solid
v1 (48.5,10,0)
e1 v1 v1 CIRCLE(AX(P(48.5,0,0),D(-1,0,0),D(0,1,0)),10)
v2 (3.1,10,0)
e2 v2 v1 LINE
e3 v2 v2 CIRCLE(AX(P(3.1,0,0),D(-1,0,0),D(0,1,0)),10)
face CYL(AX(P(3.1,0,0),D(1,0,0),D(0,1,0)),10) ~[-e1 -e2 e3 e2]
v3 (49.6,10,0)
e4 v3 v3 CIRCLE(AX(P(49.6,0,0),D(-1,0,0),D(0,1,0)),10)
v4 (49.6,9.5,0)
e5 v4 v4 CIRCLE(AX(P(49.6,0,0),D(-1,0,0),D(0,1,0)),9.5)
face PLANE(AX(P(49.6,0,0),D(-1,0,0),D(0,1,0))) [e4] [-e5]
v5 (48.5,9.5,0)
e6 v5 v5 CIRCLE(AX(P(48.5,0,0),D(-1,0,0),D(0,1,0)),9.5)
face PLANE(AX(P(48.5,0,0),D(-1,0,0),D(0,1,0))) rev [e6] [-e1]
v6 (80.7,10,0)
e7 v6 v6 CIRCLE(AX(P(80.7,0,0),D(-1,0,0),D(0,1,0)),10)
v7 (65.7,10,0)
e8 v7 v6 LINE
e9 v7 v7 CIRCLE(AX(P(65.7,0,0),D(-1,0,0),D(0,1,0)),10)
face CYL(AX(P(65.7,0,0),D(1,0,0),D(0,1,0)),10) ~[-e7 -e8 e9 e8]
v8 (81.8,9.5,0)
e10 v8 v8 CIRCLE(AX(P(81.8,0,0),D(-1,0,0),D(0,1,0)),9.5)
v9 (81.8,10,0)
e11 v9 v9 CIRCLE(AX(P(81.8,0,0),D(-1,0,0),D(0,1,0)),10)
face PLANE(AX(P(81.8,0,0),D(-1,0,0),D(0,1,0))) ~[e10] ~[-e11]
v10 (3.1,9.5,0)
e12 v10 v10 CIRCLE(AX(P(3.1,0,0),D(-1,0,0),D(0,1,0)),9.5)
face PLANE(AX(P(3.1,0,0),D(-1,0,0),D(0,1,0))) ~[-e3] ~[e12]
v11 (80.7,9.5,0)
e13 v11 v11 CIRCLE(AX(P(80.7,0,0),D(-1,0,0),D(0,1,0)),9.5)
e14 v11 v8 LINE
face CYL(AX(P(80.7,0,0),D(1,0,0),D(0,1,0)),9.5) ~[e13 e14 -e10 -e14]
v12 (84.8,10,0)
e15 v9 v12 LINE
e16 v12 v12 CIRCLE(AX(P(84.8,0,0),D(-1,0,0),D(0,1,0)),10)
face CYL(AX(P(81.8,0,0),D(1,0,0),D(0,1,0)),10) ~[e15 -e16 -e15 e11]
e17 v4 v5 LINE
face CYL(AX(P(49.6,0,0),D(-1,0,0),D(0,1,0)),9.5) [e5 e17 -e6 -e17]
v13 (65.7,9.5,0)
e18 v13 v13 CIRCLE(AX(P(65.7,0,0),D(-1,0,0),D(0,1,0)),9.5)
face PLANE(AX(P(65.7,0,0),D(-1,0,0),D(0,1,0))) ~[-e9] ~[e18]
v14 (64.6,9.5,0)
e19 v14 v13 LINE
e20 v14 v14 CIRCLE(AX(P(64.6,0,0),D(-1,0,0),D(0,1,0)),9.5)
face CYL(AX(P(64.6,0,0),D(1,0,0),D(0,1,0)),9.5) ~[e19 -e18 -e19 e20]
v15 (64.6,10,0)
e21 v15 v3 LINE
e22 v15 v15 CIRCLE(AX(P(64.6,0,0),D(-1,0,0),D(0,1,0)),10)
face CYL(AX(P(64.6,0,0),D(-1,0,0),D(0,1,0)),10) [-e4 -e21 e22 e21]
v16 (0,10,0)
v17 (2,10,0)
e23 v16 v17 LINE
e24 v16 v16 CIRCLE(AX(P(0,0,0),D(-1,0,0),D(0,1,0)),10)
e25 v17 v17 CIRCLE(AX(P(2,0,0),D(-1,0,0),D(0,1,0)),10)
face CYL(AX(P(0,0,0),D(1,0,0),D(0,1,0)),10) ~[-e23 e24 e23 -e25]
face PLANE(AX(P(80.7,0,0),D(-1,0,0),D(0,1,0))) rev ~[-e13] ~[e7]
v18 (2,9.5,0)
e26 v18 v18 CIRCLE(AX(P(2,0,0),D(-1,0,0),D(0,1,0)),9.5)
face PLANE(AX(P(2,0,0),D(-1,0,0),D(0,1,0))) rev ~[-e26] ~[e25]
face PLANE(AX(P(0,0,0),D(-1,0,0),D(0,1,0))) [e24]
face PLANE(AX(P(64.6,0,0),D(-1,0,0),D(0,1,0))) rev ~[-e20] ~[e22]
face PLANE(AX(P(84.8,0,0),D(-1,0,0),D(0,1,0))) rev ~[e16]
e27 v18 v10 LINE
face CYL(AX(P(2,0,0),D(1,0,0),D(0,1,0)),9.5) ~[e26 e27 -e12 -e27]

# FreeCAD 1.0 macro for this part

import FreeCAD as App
import Part
import Sketcher
Q = App.Units.Quantity


def add_polygon(sketch, points):
    """Adds a closed chain of lines whose ends are joined by coincident constraints."""
    first, n = sketch.GeometryCount, len(points)
    for a, b in zip(points, points[1:] + points[:1]):
        sketch.addGeometry(Part.LineSegment(App.Vector(*a, 0), App.Vector(*b, 0)), False)
    for i in range(n):
        sketch.addConstraint(Sketcher.Constraint("Coincident", first + i, 2, first + (i + 1) % n, 1))

doc = App.newDocument("Part")
body = doc.addObject("PartDesign::Body", "Body")

# Sketch on XY plane
sketch1 = body.newObject("Sketcher::SketchObject", "Sketch")
sketch1.AttachmentSupport = (doc.getObject("XY_Plane"), [""])
sketch1.MapMode = "FlatFace"
add_polygon(sketch1, [(64.6, 9.5), (64.6, 10), (49.6, 10), (49.6, 9.5), (48.5, 9.5), (48.5, 10), (3.1, 10), (3.1, 9.5), (2, 9.5), (2, 10), (0, 10), (0, 0), (84.8, 0), (84.8, 10), (81.8, 10), (81.8, 9.5), (80.7, 9.5), (80.7, 10), (65.7, 10), (65.7, 9.5)])  # lines 0-19
sketch1.addConstraint(Sketcher.Constraint("Vertical", 0))
sketch1.addConstraint(Sketcher.Constraint("Horizontal", 1))
sketch1.addConstraint(Sketcher.Constraint("Vertical", 2))
sketch1.addConstraint(Sketcher.Constraint("Horizontal", 3))
sketch1.addConstraint(Sketcher.Constraint("Vertical", 4))
sketch1.addConstraint(Sketcher.Constraint("Horizontal", 5))
sketch1.addConstraint(Sketcher.Constraint("Vertical", 6))
sketch1.addConstraint(Sketcher.Constraint("Horizontal", 7))
sketch1.addConstraint(Sketcher.Constraint("Vertical", 8))
sketch1.addConstraint(Sketcher.Constraint("Horizontal", 9))
sketch1.addConstraint(Sketcher.Constraint("Vertical", 10))
sketch1.addConstraint(Sketcher.Constraint("Horizontal", 11))
sketch1.addConstraint(Sketcher.Constraint("Vertical", 12))
sketch1.addConstraint(Sketcher.Constraint("Horizontal", 13))
sketch1.addConstraint(Sketcher.Constraint("Vertical", 14))
sketch1.addConstraint(Sketcher.Constraint("Horizontal", 15))
sketch1.addConstraint(Sketcher.Constraint("Vertical", 16))
sketch1.addConstraint(Sketcher.Constraint("Horizontal", 17))
sketch1.addConstraint(Sketcher.Constraint("Vertical", 18))
sketch1.addConstraint(Sketcher.Constraint("Horizontal", 19))
sketch1.addConstraint(Sketcher.Constraint("Coincident", 10, 2, -1, 1))
sketch1.addConstraint(Sketcher.Constraint("Horizontal", 1, 2, 4, 2))
sketch1.addConstraint(Sketcher.Constraint("Horizontal", 3, 2, 6, 2))
sketch1.addConstraint(Sketcher.Constraint("Horizontal", 5, 2, 8, 2))
sketch1.addConstraint(Sketcher.Constraint("Horizontal", 9, 2, 12, 2))
sketch1.addConstraint(Sketcher.Constraint("Horizontal", 7, 2, 14, 2))
sketch1.addConstraint(Sketcher.Constraint("Horizontal", 13, 2, 16, 2))
sketch1.addConstraint(Sketcher.Constraint("Horizontal", 15, 2, 18, 2))
sketch1.addConstraint(Sketcher.Constraint("Equal", 3, 7))
sketch1.addConstraint(Sketcher.Constraint("Equal", 7, 15))
sketch1.addConstraint(Sketcher.Constraint("Equal", 1, 17))
sketch1.addConstraint(Sketcher.Constraint("Equal", 15, 19))
sketch1.addConstraint(Sketcher.Constraint("DistanceX", 1, 2, 1, 1, Q("15 mm")))
sketch1.addConstraint(Sketcher.Constraint("DistanceX", 9, 2, 9, 1, Q("2 mm")))
sketch1.addConstraint(Sketcher.Constraint("DistanceX", 13, 2, 13, 1, Q("3 mm")))
sketch1.addConstraint(Sketcher.Constraint("DistanceY", 10, 2, 10, 1, Q("10 mm")))
sketch1.addConstraint(Sketcher.Constraint("DistanceX", 3, 2, 3, 1, Q("1.1 mm")))
sketch1.addConstraint(Sketcher.Constraint("DistanceY", 0, 1, 0, 2, Q("0.5 mm")))
sketch1.addConstraint(Sketcher.Constraint("DistanceX", -1, 1, 0, 2, Q("64.6 mm")))
revolution = body.newObject("PartDesign::Revolution", "Revolution")
revolution.Profile = sketch1
revolution.ReferenceAxis = (sketch1, ["H_Axis"])
revolution.Angle = 360

doc.recompute()
